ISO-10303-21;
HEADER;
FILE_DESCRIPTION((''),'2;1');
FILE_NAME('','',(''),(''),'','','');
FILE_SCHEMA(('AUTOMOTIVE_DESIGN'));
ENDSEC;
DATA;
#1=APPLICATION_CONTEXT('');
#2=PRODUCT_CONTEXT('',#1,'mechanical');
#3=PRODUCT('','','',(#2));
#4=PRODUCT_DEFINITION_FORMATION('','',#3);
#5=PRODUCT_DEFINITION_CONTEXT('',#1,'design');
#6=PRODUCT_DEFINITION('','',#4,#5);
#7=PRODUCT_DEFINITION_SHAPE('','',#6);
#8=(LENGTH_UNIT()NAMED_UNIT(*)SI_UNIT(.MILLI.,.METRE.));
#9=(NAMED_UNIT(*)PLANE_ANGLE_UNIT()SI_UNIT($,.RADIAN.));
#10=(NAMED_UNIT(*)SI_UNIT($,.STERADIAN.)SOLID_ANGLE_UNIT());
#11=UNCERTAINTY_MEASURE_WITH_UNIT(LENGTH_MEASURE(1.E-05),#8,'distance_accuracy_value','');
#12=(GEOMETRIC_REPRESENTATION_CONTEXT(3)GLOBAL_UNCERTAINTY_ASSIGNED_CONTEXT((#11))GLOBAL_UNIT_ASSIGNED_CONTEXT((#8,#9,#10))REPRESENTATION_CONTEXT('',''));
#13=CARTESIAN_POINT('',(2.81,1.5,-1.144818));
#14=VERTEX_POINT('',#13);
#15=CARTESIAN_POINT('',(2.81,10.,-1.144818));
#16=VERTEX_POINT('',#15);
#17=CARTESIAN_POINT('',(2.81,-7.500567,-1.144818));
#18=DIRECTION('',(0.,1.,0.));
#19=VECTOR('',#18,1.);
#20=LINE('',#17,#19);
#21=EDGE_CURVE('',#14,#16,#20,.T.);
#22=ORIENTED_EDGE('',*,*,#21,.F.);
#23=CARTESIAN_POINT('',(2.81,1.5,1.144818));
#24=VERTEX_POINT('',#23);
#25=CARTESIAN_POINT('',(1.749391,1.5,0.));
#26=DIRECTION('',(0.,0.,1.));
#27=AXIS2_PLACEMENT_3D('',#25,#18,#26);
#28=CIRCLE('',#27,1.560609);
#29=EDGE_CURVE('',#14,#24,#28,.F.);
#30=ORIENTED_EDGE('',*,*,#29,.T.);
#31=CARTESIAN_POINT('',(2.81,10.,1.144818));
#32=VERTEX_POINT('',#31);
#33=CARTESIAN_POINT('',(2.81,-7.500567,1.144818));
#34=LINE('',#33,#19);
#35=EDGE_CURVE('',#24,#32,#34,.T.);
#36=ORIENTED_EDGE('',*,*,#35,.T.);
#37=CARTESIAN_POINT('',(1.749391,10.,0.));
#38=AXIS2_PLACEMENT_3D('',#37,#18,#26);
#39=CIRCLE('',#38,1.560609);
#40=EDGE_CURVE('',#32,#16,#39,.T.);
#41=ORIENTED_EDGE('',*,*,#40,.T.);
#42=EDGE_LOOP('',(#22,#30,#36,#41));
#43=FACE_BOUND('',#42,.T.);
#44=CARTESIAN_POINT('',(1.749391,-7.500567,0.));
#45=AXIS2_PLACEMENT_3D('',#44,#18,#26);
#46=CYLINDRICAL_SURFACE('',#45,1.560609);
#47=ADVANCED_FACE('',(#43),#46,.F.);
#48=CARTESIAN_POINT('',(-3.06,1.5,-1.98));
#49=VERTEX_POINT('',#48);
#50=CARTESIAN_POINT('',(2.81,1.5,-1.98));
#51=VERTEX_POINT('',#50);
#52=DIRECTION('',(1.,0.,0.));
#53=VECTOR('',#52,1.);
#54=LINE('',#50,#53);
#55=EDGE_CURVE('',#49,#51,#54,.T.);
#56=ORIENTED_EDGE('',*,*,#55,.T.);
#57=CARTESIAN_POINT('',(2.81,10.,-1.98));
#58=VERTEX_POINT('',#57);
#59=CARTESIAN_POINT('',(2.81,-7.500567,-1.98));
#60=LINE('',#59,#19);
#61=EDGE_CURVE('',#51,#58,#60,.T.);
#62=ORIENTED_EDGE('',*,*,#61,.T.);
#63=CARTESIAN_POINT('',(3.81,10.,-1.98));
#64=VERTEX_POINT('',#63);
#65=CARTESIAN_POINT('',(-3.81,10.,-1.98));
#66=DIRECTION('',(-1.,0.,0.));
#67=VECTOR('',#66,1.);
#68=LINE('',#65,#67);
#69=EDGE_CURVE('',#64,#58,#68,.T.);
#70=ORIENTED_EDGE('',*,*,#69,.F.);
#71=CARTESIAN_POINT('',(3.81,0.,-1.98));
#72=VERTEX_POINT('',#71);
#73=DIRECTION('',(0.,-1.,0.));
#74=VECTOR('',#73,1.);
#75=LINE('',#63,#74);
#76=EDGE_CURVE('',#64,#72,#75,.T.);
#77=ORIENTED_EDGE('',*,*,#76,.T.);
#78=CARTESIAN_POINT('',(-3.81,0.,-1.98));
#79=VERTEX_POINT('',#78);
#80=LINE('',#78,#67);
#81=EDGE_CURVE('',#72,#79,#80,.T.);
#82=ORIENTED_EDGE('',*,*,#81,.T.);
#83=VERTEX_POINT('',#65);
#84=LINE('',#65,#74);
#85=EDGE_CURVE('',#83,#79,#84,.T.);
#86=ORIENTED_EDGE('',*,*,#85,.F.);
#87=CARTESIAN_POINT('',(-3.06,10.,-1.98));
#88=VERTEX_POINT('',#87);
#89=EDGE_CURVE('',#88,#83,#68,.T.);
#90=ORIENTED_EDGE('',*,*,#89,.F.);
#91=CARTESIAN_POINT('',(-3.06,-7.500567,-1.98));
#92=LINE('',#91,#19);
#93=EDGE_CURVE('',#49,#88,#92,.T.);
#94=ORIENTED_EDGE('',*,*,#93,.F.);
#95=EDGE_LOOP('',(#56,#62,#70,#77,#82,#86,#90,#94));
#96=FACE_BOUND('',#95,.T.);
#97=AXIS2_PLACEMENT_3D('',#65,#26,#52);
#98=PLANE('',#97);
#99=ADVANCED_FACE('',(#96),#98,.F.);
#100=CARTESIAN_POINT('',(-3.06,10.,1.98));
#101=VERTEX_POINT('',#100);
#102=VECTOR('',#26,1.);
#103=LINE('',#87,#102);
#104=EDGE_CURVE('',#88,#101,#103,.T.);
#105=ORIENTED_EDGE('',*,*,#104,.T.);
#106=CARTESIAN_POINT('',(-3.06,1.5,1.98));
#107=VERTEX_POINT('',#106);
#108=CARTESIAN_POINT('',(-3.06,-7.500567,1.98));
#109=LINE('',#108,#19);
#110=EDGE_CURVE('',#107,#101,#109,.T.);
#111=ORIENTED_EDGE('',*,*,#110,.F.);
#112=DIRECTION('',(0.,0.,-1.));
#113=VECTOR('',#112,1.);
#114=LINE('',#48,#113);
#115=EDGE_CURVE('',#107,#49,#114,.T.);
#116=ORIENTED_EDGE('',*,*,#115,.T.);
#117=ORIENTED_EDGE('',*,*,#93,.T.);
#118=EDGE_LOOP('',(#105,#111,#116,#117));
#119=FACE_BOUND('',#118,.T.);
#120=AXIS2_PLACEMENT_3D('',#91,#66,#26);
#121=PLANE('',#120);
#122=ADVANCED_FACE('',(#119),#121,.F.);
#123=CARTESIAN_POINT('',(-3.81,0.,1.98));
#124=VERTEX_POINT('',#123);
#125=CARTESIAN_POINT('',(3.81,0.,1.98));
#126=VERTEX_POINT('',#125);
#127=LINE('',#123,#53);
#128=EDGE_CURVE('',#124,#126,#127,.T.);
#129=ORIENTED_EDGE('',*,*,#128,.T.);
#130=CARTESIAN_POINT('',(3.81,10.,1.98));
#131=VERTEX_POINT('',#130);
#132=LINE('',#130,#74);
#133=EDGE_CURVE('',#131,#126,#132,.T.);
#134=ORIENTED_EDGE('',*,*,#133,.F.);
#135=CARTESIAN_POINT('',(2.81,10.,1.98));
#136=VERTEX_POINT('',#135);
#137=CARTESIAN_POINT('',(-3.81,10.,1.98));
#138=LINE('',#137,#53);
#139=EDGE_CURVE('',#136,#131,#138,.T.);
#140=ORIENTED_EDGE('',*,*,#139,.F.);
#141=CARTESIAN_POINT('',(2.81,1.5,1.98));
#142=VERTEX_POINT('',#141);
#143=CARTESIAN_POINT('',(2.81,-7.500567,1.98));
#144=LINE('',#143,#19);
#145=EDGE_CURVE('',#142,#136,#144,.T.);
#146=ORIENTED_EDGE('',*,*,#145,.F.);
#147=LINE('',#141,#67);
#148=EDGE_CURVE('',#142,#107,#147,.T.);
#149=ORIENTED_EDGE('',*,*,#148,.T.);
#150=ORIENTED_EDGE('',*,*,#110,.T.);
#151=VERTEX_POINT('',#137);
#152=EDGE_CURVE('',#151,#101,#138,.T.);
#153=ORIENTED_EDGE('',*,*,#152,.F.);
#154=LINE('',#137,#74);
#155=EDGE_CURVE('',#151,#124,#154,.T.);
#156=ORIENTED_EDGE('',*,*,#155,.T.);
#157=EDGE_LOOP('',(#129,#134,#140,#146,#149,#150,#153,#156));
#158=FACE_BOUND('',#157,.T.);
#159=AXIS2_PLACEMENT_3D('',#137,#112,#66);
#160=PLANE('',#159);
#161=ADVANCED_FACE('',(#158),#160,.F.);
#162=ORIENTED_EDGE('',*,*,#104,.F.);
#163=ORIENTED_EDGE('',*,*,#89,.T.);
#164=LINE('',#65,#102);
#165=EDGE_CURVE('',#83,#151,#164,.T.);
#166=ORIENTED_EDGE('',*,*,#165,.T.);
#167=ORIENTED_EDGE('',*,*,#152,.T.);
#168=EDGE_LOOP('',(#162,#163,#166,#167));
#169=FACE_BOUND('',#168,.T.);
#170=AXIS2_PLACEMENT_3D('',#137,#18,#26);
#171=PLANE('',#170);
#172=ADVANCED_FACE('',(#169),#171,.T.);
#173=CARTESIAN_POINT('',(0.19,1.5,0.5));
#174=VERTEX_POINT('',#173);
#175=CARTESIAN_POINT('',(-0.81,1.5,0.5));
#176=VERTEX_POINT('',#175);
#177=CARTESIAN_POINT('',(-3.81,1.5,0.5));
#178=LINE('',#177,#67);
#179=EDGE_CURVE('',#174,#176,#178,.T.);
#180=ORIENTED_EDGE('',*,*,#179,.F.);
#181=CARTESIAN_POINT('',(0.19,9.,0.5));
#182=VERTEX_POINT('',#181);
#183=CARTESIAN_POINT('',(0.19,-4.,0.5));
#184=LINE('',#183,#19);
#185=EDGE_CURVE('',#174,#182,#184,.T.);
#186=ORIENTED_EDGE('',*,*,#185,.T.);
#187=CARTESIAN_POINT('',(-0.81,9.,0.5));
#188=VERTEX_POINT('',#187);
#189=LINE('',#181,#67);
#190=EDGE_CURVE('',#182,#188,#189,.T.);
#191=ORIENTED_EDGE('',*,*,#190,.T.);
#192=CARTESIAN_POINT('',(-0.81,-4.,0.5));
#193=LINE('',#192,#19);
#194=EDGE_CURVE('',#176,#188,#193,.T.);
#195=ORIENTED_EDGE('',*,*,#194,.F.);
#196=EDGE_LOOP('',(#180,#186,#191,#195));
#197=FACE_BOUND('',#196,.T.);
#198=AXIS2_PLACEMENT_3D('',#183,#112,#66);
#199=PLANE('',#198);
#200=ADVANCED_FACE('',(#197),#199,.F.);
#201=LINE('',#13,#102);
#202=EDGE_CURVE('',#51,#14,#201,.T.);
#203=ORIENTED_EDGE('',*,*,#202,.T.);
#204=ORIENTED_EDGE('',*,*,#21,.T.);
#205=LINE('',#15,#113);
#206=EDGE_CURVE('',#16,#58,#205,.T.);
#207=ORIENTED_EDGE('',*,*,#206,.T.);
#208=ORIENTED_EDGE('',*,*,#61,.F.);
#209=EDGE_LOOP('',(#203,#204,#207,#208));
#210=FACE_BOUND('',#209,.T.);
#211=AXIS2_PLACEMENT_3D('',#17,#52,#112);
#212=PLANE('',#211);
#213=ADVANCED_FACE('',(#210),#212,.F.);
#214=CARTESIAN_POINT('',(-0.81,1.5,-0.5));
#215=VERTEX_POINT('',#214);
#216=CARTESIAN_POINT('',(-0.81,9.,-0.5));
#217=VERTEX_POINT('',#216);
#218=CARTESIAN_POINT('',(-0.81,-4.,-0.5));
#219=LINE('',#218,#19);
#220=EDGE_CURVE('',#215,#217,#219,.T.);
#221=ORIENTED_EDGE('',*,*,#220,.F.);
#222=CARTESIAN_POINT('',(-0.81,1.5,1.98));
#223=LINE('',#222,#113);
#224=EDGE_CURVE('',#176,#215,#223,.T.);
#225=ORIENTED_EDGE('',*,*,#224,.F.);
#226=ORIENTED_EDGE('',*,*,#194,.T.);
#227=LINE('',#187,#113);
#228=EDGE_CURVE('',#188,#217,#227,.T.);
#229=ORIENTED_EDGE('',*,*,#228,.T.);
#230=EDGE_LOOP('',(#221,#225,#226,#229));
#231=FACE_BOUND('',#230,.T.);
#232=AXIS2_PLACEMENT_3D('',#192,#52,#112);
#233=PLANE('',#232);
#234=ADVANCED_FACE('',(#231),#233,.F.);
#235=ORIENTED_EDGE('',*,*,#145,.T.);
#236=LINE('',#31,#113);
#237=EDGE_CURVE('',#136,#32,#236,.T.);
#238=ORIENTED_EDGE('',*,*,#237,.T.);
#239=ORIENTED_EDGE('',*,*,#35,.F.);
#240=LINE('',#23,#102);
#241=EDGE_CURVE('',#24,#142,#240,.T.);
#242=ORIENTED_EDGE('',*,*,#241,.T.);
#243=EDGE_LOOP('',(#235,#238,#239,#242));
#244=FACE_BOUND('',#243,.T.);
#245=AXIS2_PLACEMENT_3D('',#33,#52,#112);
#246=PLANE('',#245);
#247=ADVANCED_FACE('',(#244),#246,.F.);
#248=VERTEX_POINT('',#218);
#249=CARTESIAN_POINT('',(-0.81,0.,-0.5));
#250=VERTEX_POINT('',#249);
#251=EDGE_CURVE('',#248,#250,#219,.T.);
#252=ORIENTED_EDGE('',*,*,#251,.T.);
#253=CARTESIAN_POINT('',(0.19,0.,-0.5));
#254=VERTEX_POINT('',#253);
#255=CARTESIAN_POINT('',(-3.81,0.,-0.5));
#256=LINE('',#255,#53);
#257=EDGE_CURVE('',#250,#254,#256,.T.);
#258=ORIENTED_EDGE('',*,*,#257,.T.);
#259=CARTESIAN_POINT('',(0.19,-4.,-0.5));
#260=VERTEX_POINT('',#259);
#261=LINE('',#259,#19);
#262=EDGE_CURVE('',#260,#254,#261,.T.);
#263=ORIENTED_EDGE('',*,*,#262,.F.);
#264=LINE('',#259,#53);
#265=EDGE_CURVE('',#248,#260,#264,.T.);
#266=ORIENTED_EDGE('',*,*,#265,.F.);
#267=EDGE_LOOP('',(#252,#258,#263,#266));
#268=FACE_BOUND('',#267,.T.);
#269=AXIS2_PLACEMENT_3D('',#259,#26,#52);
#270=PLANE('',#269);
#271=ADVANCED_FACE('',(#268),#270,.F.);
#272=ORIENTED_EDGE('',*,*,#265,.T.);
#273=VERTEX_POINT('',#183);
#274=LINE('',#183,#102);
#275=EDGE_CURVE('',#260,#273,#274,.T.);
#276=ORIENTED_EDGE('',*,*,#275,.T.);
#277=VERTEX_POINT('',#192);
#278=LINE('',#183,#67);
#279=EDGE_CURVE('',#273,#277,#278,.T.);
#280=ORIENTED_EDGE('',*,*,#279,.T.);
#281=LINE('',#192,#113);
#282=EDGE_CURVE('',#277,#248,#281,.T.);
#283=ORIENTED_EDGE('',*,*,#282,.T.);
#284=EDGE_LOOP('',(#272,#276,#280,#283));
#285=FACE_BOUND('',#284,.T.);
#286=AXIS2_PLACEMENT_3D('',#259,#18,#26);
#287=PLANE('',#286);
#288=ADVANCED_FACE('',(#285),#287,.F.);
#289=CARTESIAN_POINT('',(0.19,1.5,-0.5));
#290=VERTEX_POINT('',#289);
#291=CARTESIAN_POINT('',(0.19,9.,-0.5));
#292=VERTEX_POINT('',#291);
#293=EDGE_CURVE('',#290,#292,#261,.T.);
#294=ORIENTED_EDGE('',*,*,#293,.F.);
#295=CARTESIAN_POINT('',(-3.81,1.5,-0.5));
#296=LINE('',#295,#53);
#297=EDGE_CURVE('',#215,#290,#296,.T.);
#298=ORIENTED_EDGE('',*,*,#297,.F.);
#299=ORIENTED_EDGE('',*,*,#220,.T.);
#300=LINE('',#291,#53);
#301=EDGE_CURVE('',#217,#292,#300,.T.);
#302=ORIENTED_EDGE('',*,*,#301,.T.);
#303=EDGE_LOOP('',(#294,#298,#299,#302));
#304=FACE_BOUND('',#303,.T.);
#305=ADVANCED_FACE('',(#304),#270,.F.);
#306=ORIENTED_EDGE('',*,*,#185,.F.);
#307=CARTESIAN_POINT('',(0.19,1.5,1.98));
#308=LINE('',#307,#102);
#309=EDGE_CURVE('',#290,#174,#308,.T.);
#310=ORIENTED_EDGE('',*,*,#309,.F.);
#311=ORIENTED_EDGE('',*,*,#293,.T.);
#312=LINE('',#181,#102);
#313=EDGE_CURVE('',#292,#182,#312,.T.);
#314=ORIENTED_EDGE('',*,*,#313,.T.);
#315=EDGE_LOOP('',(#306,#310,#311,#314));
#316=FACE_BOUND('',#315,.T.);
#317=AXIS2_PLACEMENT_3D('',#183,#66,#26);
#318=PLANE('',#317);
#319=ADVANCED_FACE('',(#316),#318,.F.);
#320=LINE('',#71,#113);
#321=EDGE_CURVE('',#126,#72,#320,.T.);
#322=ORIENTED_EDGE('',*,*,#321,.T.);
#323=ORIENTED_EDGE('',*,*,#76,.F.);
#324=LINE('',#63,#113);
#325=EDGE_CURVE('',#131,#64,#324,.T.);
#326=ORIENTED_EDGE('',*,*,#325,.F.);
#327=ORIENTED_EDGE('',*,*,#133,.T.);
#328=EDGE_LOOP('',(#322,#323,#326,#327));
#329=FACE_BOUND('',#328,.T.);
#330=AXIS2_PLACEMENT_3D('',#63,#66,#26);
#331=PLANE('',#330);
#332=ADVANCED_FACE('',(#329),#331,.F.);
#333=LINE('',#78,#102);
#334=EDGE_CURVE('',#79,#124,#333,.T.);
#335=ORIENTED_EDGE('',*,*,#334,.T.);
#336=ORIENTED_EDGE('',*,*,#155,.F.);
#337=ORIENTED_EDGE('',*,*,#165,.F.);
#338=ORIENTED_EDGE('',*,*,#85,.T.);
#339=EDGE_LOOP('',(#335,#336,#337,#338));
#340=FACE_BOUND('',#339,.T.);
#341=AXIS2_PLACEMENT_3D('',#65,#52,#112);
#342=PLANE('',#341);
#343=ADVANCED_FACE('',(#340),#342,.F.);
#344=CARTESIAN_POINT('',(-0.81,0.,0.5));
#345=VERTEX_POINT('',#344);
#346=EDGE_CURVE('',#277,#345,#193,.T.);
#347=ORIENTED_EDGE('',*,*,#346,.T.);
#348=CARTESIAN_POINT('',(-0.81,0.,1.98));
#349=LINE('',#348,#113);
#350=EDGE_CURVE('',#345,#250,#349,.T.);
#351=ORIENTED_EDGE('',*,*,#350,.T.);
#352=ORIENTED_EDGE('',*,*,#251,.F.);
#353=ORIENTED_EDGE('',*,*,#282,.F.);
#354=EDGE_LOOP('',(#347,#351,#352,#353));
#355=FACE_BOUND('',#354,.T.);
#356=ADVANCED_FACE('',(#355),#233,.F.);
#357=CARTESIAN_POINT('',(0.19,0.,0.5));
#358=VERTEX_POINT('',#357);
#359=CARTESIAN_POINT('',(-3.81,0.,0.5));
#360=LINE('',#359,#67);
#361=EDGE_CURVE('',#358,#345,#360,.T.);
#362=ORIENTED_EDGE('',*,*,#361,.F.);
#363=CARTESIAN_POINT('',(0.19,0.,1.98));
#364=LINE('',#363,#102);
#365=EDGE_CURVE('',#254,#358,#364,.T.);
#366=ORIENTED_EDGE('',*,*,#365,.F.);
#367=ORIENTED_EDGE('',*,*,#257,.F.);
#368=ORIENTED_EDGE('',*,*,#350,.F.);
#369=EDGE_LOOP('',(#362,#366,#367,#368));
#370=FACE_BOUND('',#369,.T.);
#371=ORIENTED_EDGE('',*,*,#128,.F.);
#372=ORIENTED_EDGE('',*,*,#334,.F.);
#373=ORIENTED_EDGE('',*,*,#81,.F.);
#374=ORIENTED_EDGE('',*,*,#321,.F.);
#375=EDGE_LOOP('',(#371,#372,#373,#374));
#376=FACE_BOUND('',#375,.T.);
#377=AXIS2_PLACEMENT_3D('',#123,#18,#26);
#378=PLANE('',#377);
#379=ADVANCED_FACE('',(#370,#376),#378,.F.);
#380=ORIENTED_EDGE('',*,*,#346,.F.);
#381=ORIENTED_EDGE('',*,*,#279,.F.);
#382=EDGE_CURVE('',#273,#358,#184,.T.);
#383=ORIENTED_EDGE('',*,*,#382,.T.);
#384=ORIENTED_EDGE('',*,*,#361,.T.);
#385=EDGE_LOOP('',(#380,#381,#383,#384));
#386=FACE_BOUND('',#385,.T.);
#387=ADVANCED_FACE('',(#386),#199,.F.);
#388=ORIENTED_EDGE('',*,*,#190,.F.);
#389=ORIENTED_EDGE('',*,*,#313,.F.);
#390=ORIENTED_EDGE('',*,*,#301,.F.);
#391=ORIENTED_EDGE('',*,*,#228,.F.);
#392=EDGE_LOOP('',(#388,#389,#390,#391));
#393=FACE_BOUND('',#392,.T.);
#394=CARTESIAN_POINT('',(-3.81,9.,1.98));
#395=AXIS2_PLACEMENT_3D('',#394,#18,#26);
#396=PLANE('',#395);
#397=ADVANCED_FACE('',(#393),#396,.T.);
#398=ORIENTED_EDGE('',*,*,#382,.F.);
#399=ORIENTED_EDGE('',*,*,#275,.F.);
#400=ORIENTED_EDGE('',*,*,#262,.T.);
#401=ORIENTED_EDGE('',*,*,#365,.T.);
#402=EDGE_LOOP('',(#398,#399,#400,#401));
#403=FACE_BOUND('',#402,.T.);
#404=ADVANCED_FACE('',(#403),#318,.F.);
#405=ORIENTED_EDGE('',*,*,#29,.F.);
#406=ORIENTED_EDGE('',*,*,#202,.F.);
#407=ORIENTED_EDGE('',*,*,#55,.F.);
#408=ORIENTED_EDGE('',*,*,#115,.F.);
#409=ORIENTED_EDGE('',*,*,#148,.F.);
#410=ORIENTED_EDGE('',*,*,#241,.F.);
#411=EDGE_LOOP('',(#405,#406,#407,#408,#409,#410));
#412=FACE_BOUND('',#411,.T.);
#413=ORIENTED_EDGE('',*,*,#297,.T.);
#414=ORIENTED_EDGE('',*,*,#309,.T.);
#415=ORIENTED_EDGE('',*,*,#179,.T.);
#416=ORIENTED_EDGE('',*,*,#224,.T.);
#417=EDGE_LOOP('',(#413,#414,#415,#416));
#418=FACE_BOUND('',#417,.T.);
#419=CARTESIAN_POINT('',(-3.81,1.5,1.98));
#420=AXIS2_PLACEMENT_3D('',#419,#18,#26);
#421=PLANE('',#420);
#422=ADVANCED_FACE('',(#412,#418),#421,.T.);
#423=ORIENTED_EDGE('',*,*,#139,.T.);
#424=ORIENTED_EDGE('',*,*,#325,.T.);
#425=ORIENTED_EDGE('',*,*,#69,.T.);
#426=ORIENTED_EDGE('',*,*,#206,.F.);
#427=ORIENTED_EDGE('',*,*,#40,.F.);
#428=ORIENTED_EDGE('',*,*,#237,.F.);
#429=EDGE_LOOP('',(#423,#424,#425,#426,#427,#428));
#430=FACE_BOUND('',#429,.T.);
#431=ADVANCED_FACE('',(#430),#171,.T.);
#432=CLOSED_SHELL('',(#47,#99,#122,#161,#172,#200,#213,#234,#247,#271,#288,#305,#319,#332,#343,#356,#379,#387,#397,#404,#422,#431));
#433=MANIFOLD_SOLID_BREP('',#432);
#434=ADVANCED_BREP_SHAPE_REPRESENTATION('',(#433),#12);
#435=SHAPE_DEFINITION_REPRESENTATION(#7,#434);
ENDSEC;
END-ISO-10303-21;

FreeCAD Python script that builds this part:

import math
import FreeCAD as App
import Part
import Sketcher
Q = App.Units.Quantity


def add_polygon(sketch, points):
    """Adds a closed chain of lines whose ends are joined by coincident constraints."""
    first, n = sketch.GeometryCount, len(points)
    for a, b in zip(points, points[1:] + points[:1]):
        sketch.addGeometry(Part.LineSegment(App.Vector(*a, 0), App.Vector(*b, 0)), False)
    for i in range(n):
        sketch.addConstraint(Sketcher.Constraint("Coincident", first + i, 2, first + (i + 1) % n, 1))

doc = App.newDocument("Part")
params = doc.addObject("Spreadsheet::Sheet", "Params")
for row, (alias, value) in enumerate([
    ("sketch1_width", "7.62 mm"),
    ("sketch1_height", "3.96 mm"),
    ("pad1_length", "10 mm"),
    ("sketch2_width", "5.87 mm"),
    ("sketch2_height", "3.96 mm"),
    ("pocket1_length", "8.5 mm"),
    ("sketch3_width", "1 mm"),
    ("pad2_length", "4 mm"),
    ("pad2_length2", "9 mm"),
], start=1):
    params.set(f"A{row}", alias)
    params.set(f"B{row}", "=" + value)
    params.setAlias(f"B{row}", alias)

body = doc.addObject("PartDesign::Body", "Body")

sketch1 = body.newObject("Sketcher::SketchObject", "Sketch")
sketch1.AttachmentSupport = (doc.getObject("XZ_Plane"), [""])
sketch1.MapMode = "FlatFace"
add_polygon(sketch1, [(-3.81, -1.98), (-3.81, 1.98), (3.81, 1.98), (3.81, -1.98)])
sketch1.addConstraint([
    Sketcher.Constraint("Vertical", 0),
    Sketcher.Constraint("Horizontal", 1),
    Sketcher.Constraint("Vertical", 2),
    Sketcher.Constraint("Horizontal", 3),
    Sketcher.Constraint("Symmetric", 0, 2, 2, 2, -1, 1),
    Sketcher.Constraint("DistanceX", 1, 1, 1, 2, Q("7.62 mm")),
    Sketcher.Constraint("DistanceY", 0, 1, 0, 2, Q("3.96 mm")),
])
sketch1.setExpression("Constraints[9]", "Params.sketch1_width")
sketch1.setExpression("Constraints[10]", "Params.sketch1_height")
pad1 = body.newObject("PartDesign::Pad", "Pad")
pad1.Profile = sketch1
pad1.setExpression("Length", "Params.pad1_length")
pad1.Reversed = True

sketch2 = body.newObject("Sketcher::SketchObject", "Sketch001")
sketch2.AttachmentSupport = (doc.getObject("XZ_Plane"), [""])
sketch2.MapMode = "FlatFace"
sketch2.AttachmentOffset = App.Placement(App.Vector(0, 0, -10), App.Rotation())
sketch2.addGeometry([
    Part.LineSegment(App.Vector(2.81, 1.98, 0), App.Vector(2.81, 1.144818, 0)),
    Part.ArcOfCircle(Part.Circle(App.Vector(1.749391, 0, 0), App.Vector(0, 0, 1), 1.560609), math.radians(-47.18665), math.radians(47.18665)),
    Part.LineSegment(App.Vector(2.81, -1.144818, 0), App.Vector(2.81, -1.98, 0)),
    Part.LineSegment(App.Vector(2.81, -1.98, 0), App.Vector(-3.06, -1.98, 0)),
    Part.LineSegment(App.Vector(-3.06, -1.98, 0), App.Vector(-3.06, 1.98, 0)),
    Part.LineSegment(App.Vector(-3.06, 1.98, 0), App.Vector(2.81, 1.98, 0)),
], False)
sketch2.addConstraint([
    Sketcher.Constraint("Coincident", 0, 2, 1, 2),
    Sketcher.Constraint("Coincident", 1, 1, 2, 1),
    Sketcher.Constraint("Coincident", 2, 2, 3, 1),
    Sketcher.Constraint("Coincident", 3, 2, 4, 1),
    Sketcher.Constraint("Coincident", 4, 2, 5, 1),
    Sketcher.Constraint("Coincident", 5, 2, 0, 1),
    Sketcher.Constraint("Vertical", 0),
    Sketcher.Constraint("Vertical", 2),
    Sketcher.Constraint("Horizontal", 3),
    Sketcher.Constraint("Vertical", 4),
    Sketcher.Constraint("Horizontal", 5),
    Sketcher.Constraint("Symmetric", 0, 2, 1, 1, -1),
    Sketcher.Constraint("Equal", 0, 2),
    Sketcher.Constraint("DistanceX", 3, 2, 3, 1, Q("5.87 mm")),
    Sketcher.Constraint("DistanceY", 4, 1, 4, 2, Q("3.96 mm")),
    Sketcher.Constraint("DistanceX", -1, 1, 0, 2, Q("2.81 mm")),
    Sketcher.Constraint("Radius", 1, Q("1.560609 mm")),
    Sketcher.Constraint("DistanceY", 0, 2, 0, 1, Q("0.835182 mm")),
])
sketch2.setExpression("Constraints[13]", "Params.sketch2_width")
sketch2.setExpression("Constraints[14]", "Params.sketch2_height")
pocket1 = body.newObject("PartDesign::Pocket", "Pocket")
pocket1.Profile = sketch2
pocket1.setExpression("Length", "Params.pocket1_length")
pocket1.Reversed = True

sketch3 = body.newObject("Sketcher::SketchObject", "Sketch002")
sketch3.AttachmentSupport = (doc.getObject("XZ_Plane"), [""])
sketch3.MapMode = "FlatFace"
add_polygon(sketch3, [(-0.81, 0.5), (-0.81, -0.5), (0.19, -0.5), (0.19, 0.5)])
sketch3.addConstraint([
    Sketcher.Constraint("Vertical", 0),
    Sketcher.Constraint("Horizontal", 1),
    Sketcher.Constraint("Vertical", 2),
    Sketcher.Constraint("Horizontal", 3),
    Sketcher.Constraint("Equal", 3, 0),
    Sketcher.Constraint("DistanceX", 1, 1, 1, 2, Q("1 mm")),
    Sketcher.Constraint("DistanceY", 0, 2, -1, 1, Q("0.5 mm")),
    Sketcher.Constraint("DistanceX", 0, 2, -1, 1, Q("0.81 mm")),
])
sketch3.setExpression("Constraints[9]", "Params.sketch3_width")
pad2 = body.newObject("PartDesign::Pad", "Pad001")
pad2.Profile = sketch3
pad2.Type = "TwoLengths"
pad2.setExpression("Length", "Params.pad2_length")
pad2.setExpression("Length2", "Params.pad2_length2")

doc.recompute()
